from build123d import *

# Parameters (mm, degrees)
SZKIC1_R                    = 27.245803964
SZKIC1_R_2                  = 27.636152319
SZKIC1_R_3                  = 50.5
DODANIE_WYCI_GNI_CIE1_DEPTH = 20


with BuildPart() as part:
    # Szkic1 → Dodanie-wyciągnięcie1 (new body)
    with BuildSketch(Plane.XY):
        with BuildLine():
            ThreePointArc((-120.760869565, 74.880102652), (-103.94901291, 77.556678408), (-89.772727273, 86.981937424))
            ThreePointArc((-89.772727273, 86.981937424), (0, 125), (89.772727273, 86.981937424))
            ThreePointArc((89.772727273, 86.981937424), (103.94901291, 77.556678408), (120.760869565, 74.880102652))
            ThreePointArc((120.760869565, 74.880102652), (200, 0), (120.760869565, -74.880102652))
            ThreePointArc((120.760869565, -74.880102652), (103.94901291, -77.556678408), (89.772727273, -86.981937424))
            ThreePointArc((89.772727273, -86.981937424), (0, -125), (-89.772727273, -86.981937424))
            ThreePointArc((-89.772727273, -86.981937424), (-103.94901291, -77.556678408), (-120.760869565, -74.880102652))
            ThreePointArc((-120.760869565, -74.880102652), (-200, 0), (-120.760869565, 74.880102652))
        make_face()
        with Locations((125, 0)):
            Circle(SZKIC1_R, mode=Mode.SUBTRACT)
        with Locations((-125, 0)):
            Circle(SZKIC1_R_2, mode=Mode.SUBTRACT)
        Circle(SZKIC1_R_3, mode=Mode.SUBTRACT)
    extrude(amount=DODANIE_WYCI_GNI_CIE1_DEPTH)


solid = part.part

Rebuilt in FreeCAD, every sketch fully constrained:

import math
import FreeCAD as App
import Part
import Sketcher
from FreeCAD import Vector
Q = App.Units.Quantity

doc = App.newDocument("Part")
body = doc.addObject("PartDesign::Body", "Body")

# Sketch on XY plane
sketch1 = body.newObject("Sketcher::SketchObject", "Sketch")
sketch1.AttachmentSupport = (doc.getObject("XY_Plane"), [""])
sketch1.MapMode = "FlatFace"
sketch1.addGeometry(Part.ArcOfCircle(Part.Circle(Vector(-118, 115, 0), Vector(0, 0, 1), 40), math.radians(-93), math.radians(-44)), False)
sketch1.addGeometry(Part.ArcOfCircle(Part.Circle(Vector(-125, 0, 0), Vector(0, 0, 1), 75), math.radians(87), math.radians(273)), False)
sketch1.addGeometry(Part.ArcOfCircle(Part.Circle(Vector(-118, -115, 0), Vector(0, 0, 1), 40), math.radians(44), math.radians(93)), False)
sketch1.addGeometry(Part.ArcOfCircle(Part.Circle(Vector(0, 0, 0), Vector(0, 0, 1), 125), math.radians(-136), math.radians(-44)), False)
sketch1.addGeometry(Part.ArcOfCircle(Part.Circle(Vector(118, -115, 0), Vector(0, 0, 1), 40), math.radians(87), math.radians(136)), False)
sketch1.addGeometry(Part.ArcOfCircle(Part.Circle(Vector(125, 0, 0), Vector(0, 0, 1), 75), math.radians(-93), math.radians(93)), False)
sketch1.addGeometry(Part.ArcOfCircle(Part.Circle(Vector(118, 115, 0), Vector(0, 0, 1), 40), math.radians(-136), math.radians(-87)), False)
sketch1.addGeometry(Part.ArcOfCircle(Part.Circle(Vector(0, 0, 0), Vector(0, 0, 1), 125), math.radians(44), math.radians(136)), False)
sketch1.addGeometry(Part.Circle(Vector(125, 0, 0), Vector(0, 0, 1), 27), False)
sketch1.addGeometry(Part.Circle(Vector(0, 0, 0), Vector(0, 0, 1), 50), False)
sketch1.addGeometry(Part.Circle(Vector(-125, 0, 0), Vector(0, 0, 1), 28), False)
sketch1.addConstraint(Sketcher.Constraint("Tangent", 0, 1, 1, 1))
sketch1.addConstraint(Sketcher.Constraint("Tangent", 1, 2, 2, 2))
sketch1.addConstraint(Sketcher.Constraint("Tangent", 2, 1, 3, 1))
sketch1.addConstraint(Sketcher.Constraint("Tangent", 3, 2, 4, 2))
sketch1.addConstraint(Sketcher.Constraint("Tangent", 4, 1, 5, 1))
sketch1.addConstraint(Sketcher.Constraint("Tangent", 5, 2, 6, 2))
sketch1.addConstraint(Sketcher.Constraint("Tangent", 6, 1, 7, 1))
sketch1.addConstraint(Sketcher.Constraint("Tangent", 7, 2, 0, 2))
sketch1.addConstraint(Sketcher.Constraint("Coincident", 3, 3, -1, 1))
sketch1.addConstraint(Sketcher.Constraint("Coincident", 7, 3, -1, 1))
sketch1.addConstraint(Sketcher.Constraint("Coincident", 9, 3, -1, 1))
sketch1.addConstraint(Sketcher.Constraint("Coincident", 8, 3, 5, 3))
sketch1.addConstraint(Sketcher.Constraint("Coincident", 10, 3, 1, 3))
sketch1.addConstraint(Sketcher.Constraint("Equal", 0, 2))
sketch1.addConstraint(Sketcher.Constraint("Equal", 2, 4))
sketch1.addConstraint(Sketcher.Constraint("Equal", 1, 5))
sketch1.addConstraint(Sketcher.Constraint("Equal", 4, 6))
sketch1.addConstraint(Sketcher.Constraint("Equal", 3, 7))
sketch1.addConstraint(Sketcher.Constraint("Symmetric", 1, 3, 5, 3, -1, 1))
sketch1.addConstraint(Sketcher.Constraint("PointOnObject", 1, 3, -1))
sketch1.addConstraint(Sketcher.Constraint("Diameter", 9, Q("101 mm")))
sketch1.addConstraint(Sketcher.Constraint("Radius", 0, Q("40 mm")))
sketch1.addConstraint(Sketcher.Constraint("Radius", 1, Q("75 mm")))
sketch1.addConstraint(Sketcher.Constraint("Radius", 3, Q("125 mm")))
sketch1.addConstraint(Sketcher.Constraint("DistanceX", 1, 3, -1, 1, Q("125 mm")))
sketch1.addConstraint(Sketcher.Constraint("Diameter", 8, Q("54.491608 mm")))
sketch1.addConstraint(Sketcher.Constraint("Diameter", 10, Q("55.272305 mm")))
pad1 = body.newObject("PartDesign::Pad", "Pad")
pad1.Profile = sketch1
pad1.Length = 20

doc.recompute()
